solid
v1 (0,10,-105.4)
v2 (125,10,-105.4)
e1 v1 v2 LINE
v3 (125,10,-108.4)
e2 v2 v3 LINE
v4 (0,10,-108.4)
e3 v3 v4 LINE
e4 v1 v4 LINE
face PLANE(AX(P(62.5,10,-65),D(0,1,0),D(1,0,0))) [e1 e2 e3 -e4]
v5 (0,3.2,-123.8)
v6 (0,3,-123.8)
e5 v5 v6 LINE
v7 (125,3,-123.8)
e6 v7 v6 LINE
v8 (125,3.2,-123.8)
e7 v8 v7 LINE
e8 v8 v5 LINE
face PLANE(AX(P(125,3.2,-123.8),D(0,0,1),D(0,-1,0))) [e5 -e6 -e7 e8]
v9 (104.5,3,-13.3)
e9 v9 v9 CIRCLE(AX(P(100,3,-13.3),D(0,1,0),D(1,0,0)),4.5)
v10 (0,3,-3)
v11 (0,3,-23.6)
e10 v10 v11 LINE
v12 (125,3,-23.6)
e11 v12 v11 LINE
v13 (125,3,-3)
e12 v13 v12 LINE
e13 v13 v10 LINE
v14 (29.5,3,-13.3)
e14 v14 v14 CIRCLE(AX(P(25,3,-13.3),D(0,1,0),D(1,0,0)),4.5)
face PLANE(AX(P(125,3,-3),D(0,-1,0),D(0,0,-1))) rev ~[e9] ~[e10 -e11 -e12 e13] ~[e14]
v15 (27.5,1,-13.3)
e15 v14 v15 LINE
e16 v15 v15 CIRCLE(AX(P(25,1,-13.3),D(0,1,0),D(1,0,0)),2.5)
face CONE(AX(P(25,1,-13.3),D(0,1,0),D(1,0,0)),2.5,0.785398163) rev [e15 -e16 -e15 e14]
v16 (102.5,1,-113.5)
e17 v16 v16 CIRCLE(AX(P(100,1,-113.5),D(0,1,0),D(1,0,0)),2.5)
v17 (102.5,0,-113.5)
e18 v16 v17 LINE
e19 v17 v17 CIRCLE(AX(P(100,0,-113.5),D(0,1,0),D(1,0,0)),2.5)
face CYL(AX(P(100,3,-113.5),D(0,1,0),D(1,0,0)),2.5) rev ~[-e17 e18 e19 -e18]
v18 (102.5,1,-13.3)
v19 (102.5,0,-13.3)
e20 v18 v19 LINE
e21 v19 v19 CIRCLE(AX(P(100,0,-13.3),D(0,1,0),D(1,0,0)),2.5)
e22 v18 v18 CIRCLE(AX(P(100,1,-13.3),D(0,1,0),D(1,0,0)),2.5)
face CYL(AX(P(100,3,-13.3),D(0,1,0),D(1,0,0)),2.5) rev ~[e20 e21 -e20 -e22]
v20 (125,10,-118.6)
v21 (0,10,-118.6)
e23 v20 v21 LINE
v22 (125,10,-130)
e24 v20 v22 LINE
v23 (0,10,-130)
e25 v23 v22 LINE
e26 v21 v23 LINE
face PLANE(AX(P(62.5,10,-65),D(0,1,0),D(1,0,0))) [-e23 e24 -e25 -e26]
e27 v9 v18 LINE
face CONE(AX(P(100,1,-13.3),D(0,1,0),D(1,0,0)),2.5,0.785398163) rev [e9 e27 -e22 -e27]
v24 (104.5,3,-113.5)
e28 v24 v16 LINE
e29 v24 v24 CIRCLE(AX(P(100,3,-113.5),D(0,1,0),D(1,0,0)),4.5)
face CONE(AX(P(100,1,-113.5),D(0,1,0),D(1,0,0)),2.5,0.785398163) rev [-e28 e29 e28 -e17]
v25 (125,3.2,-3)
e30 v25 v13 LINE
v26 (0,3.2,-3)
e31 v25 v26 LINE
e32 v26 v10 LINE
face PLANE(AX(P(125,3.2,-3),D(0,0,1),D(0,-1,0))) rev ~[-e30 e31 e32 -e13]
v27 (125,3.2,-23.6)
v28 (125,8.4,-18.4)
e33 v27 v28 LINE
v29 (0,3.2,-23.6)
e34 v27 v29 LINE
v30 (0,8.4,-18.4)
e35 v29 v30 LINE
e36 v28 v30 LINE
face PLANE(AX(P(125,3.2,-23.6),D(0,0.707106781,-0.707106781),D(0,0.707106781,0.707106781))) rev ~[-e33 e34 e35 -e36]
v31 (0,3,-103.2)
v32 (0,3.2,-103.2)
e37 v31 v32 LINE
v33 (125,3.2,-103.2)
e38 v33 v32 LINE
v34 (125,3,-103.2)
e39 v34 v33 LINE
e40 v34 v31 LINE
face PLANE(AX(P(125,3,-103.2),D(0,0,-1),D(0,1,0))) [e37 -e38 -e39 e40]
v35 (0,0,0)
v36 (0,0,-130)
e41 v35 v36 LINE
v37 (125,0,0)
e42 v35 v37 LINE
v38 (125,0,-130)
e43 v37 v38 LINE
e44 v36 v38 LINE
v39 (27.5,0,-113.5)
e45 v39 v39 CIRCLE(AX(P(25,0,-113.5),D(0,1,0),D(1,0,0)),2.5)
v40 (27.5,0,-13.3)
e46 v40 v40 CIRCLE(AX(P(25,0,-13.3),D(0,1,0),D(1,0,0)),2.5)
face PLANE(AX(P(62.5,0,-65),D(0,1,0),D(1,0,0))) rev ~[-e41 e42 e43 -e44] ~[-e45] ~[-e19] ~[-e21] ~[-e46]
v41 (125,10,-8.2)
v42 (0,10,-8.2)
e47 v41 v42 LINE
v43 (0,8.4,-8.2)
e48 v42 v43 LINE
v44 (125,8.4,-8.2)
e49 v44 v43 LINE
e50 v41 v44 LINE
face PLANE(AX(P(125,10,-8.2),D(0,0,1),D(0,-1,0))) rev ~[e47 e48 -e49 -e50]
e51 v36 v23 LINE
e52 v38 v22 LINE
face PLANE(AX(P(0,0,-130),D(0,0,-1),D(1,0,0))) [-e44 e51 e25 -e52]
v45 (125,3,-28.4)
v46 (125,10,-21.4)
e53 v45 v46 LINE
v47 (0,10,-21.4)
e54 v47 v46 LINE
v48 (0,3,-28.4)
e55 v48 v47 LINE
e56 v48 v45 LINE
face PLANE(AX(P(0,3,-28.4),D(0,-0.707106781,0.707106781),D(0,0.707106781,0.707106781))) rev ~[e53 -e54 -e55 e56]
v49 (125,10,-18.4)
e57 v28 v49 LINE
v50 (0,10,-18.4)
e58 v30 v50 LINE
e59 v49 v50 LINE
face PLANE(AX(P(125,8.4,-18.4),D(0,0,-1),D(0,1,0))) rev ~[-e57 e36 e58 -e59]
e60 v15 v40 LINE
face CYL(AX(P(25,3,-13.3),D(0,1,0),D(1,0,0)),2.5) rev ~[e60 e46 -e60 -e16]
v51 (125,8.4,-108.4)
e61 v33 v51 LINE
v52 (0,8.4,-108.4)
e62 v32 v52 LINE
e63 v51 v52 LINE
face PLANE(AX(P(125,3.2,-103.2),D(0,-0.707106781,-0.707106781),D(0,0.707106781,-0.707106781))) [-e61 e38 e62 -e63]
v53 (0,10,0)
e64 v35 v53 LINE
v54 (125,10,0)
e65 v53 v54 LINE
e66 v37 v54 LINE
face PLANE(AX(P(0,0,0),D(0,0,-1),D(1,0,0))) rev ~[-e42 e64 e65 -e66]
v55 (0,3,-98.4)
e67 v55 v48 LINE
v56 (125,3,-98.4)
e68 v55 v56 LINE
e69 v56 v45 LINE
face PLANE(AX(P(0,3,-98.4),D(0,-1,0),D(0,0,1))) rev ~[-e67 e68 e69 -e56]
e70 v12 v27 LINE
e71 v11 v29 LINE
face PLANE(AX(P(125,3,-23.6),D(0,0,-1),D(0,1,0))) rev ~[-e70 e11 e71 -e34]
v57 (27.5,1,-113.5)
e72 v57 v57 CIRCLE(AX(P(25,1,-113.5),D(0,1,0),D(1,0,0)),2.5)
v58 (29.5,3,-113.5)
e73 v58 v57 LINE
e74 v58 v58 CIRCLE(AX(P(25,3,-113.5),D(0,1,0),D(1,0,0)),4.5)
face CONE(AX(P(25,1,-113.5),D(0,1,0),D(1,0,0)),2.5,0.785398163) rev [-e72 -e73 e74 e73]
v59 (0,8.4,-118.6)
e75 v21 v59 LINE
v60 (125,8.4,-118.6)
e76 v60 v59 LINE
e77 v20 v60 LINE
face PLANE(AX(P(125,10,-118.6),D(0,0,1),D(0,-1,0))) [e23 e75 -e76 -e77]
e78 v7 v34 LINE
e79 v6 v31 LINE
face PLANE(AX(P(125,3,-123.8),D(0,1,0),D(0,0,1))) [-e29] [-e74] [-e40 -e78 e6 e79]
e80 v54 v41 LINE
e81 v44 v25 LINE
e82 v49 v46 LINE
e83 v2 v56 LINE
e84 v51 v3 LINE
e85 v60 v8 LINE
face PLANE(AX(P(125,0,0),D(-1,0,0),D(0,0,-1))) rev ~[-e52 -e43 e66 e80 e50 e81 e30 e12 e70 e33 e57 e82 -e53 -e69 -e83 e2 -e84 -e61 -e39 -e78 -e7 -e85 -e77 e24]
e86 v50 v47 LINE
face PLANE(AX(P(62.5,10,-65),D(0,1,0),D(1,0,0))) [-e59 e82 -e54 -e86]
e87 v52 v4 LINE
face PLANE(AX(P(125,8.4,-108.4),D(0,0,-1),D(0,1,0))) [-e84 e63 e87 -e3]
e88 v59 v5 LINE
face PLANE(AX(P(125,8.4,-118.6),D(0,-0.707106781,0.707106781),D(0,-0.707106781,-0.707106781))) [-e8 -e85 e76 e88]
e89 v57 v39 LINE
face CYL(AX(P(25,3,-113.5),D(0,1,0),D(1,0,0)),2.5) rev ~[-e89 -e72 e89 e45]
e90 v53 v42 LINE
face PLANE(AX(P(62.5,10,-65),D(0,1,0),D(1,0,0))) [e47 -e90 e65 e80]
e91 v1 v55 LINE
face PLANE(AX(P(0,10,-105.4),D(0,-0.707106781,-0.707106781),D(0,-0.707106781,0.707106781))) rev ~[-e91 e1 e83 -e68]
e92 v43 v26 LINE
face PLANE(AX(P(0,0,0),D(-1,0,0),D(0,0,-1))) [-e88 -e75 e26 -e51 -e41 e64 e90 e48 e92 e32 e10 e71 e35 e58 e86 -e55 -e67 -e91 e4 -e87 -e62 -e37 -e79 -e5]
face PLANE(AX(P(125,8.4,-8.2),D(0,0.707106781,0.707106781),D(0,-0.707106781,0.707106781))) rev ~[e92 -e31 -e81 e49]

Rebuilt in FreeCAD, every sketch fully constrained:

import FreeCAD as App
import Part
import Sketcher

V = App.Vector
Q = App.Units.Quantity


def edges_at(feature, points):
    """Names of the edges that pass closest to the given points."""
    edges = feature.Shape.Edges
    near = lambda p: min(range(len(edges)), key=lambda i: edges[i].distToShape(Part.Vertex(*p))[0])
    return sorted({f"Edge{near(p) + 1}" for p in points})


def add_polygon(sketch, points):
    """Adds a closed chain of lines whose ends are joined by coincident constraints."""
    first, n = sketch.GeometryCount, len(points)
    for a, b in zip(points, points[1:] + points[:1]):
        sketch.addGeometry(Part.LineSegment(App.Vector(*a, 0), App.Vector(*b, 0)), False)
    for i in range(n):
        sketch.addConstraint(Sketcher.Constraint("Coincident", first + i, 2, first + (i + 1) % n, 1))

doc = App.newDocument("Part")
body = doc.addObject("PartDesign::Body", "Body")

# Sketch on XZ plane
sketch1 = body.newObject("Sketcher::SketchObject", "Sketch")
sketch1.AttachmentSupport = (doc.getObject("XZ_Plane"), [""])
sketch1.MapMode = "FlatFace"
add_polygon(sketch1, [(0, -130), (0, 0), (125, 0), (125, -130)])  # lines 0-3
sketch1.addConstraint([
    Sketcher.Constraint("Vertical", 0),
    Sketcher.Constraint("Horizontal", 1),
    Sketcher.Constraint("Vertical", 2),
    Sketcher.Constraint("Horizontal", 3),
    Sketcher.Constraint("Coincident", 0, 2, -1, 1),
    Sketcher.Constraint("DistanceX", 1, 1, 1, 2, Q("125 mm")),
    Sketcher.Constraint("DistanceY", 0, 1, 0, 2, Q("130 mm")),
])
pad1 = body.newObject("PartDesign::Pad", "Pad")
pad1.Profile = sketch1
pad1.Length = 10
pad1.Reversed = True

# Sketch on YZ plane
sketch2 = body.newObject("Sketcher::SketchObject", "Sketch001")
sketch2.AttachmentSupport = (doc.getObject("YZ_Plane"), [""])
sketch2.MapMode = "FlatFace"
sketch2.AttachmentOffset = App.Placement(V(0, 0, 125), App.Rotation())
add_polygon(sketch2, [(10, -8.2), (8.4, -8.2), (3.2, -3), (3, -3), (3, -23.6), (3.2, -23.6), (8.4, -18.4), (10, -18.4)])  # lines 0-7
add_polygon(sketch2, [(8.4, -118.6), (10, -118.6), (10, -108.4), (8.4, -108.4), (3.2, -103.2), (3, -103.2), (3, -123.8), (3.2, -123.8)])  # lines 8-15
sketch2.addConstraint([
    Sketcher.Constraint("Horizontal", 0),
    Sketcher.Constraint("Horizontal", 2),
    Sketcher.Constraint("Vertical", 3),
    Sketcher.Constraint("Horizontal", 4),
    Sketcher.Constraint("Horizontal", 6),
    Sketcher.Constraint("Vertical", 7),
    Sketcher.Constraint("Horizontal", 8),
    Sketcher.Constraint("Vertical", 9),
    Sketcher.Constraint("Horizontal", 10),
    Sketcher.Constraint("Horizontal", 12),
    Sketcher.Constraint("Vertical", 13),
    Sketcher.Constraint("Horizontal", 14),
    Sketcher.Constraint("Perpendicular", 1, 5),
    Sketcher.Constraint("Perpendicular", 5, 11),
    Sketcher.Constraint("Perpendicular", 11, 15),
    Sketcher.Constraint("Vertical", 1, 2, 4, 2),
    Sketcher.Constraint("Vertical", 0, 2, 5, 2),
    Sketcher.Constraint("Vertical", 7, 2, 8, 2),
    Sketcher.Constraint("Vertical", 5, 2, 10, 2),
    Sketcher.Constraint("Vertical", 4, 2, 11, 2),
    Sketcher.Constraint("Vertical", 3, 2, 12, 2),
    Sketcher.Constraint("Vertical", 11, 2, 14, 2),
    Sketcher.Constraint("Vertical", 10, 2, 15, 2),
    Sketcher.Constraint("Equal", 7, 9),
    Sketcher.Constraint("Equal", 1, 5),
    Sketcher.Constraint("DistanceX", 0, 2, 0, 1, Q("1.6 mm")),
    Sketcher.Constraint("DistanceX", 2, 2, 2, 1, Q("0.2 mm")),
    Sketcher.Constraint("DistanceY", 3, 2, 3, 1, Q("20.6 mm")),
    Sketcher.Constraint("DistanceY", 7, 1, 7, 2, Q("10.2 mm")),
    Sketcher.Constraint("DistanceY", 1, 2, -1, 1, Q("3 mm")),
    Sketcher.Constraint("DistanceX", -1, 1, 2, 2, Q("3 mm")),
    Sketcher.Constraint("DistanceY", 8, 2, 4, 2, Q("95 mm")),
])
pocket1 = body.newObject("PartDesign::Pocket", "Pocket")
pocket1.Profile = sketch2
pocket1.Length = 125

# Sketch on XZ plane
sketch3 = body.newObject("Sketcher::SketchObject", "Sketch002")
sketch3.AttachmentSupport = (doc.getObject("XZ_Plane"), [""])
sketch3.MapMode = "FlatFace"
sketch3.AttachmentOffset = App.Placement(V(0, 0, -3), App.Rotation())
sketch3.addGeometry([
    Part.Circle(V(100, -13.3, 0), V(0, 0, 1), 2.5),
    Part.Circle(V(25, -13.3, 0), V(0, 0, 1), 2.5),
    Part.Circle(V(100, -113.5, 0), V(0, 0, 1), 2.5),
    Part.Circle(V(25, -113.5, 0), V(0, 0, 1), 2.5),
], False)
sketch3.addConstraint([
    Sketcher.Constraint("Equal", 0, 1),
    Sketcher.Constraint("Equal", 1, 2),
    Sketcher.Constraint("Equal", 2, 3),
    Sketcher.Constraint("Horizontal", 0, 3, 1, 3),
    Sketcher.Constraint("Horizontal", 2, 3, 3, 3),
    Sketcher.Constraint("Vertical", 0, 3, 2, 3),
    Sketcher.Constraint("Vertical", 1, 3, 3, 3),
    Sketcher.Constraint("Diameter", 0, Q("5 mm")),
    Sketcher.Constraint("DistanceX", -1, 1, 0, 3, Q("100 mm")),
    Sketcher.Constraint("DistanceX", -1, 1, 1, 3, Q("25 mm")),
    Sketcher.Constraint("DistanceY", 0, 3, -1, 1, Q("13.3 mm")),
    Sketcher.Constraint("DistanceY", 2, 3, -1, 1, Q("113.5 mm")),
])
pocket2 = body.newObject("PartDesign::Pocket", "Pocket001")
pocket2.Profile = sketch3
pocket2.Length = 3
pocket2.Reversed = True
doc.recompute()

chamfer = body.newObject("PartDesign::Chamfer", "Chamfer")
chamfer.Base = (pocket2, edges_at(pocket2, [
    (22.5, 3, -13.3),
    (97.5, 3, -113.5),
    (22.5, 3, -113.5),
    (97.5, 3, -13.3),
]))
chamfer.Size = 2

# Sketch on YZ plane
sketch4 = body.newObject("Sketcher::SketchObject", "Sketch003")
sketch4.AttachmentSupport = (doc.getObject("YZ_Plane"), [""])
sketch4.MapMode = "FlatFace"
add_polygon(sketch4, [(10, -105.4), (3, -98.4), (3, -28.4), (10, -21.4)])  # lines 0-3
sketch4.addConstraint([
    Sketcher.Constraint("Vertical", 1),
    Sketcher.Constraint("Vertical", 3),
    Sketcher.Constraint("Perpendicular", 0, 2),
    Sketcher.Constraint("Equal", 0, 2),
    Sketcher.Constraint("DistanceY", 1, 1, 1, 2, Q("70 mm")),
    Sketcher.Constraint("DistanceY", 3, 2, 3, 1, Q("84 mm")),
    Sketcher.Constraint("DistanceX", -1, 1, 0, 2, Q("3 mm")),
    Sketcher.Constraint("DistanceY", 0, 2, -1, 1, Q("98.4 mm")),
])
pocket3 = body.newObject("PartDesign::Pocket", "Pocket002")
pocket3.Profile = sketch4
pocket3.Type = "ThroughAll"
pocket3.Reversed = True

doc.recompute()
